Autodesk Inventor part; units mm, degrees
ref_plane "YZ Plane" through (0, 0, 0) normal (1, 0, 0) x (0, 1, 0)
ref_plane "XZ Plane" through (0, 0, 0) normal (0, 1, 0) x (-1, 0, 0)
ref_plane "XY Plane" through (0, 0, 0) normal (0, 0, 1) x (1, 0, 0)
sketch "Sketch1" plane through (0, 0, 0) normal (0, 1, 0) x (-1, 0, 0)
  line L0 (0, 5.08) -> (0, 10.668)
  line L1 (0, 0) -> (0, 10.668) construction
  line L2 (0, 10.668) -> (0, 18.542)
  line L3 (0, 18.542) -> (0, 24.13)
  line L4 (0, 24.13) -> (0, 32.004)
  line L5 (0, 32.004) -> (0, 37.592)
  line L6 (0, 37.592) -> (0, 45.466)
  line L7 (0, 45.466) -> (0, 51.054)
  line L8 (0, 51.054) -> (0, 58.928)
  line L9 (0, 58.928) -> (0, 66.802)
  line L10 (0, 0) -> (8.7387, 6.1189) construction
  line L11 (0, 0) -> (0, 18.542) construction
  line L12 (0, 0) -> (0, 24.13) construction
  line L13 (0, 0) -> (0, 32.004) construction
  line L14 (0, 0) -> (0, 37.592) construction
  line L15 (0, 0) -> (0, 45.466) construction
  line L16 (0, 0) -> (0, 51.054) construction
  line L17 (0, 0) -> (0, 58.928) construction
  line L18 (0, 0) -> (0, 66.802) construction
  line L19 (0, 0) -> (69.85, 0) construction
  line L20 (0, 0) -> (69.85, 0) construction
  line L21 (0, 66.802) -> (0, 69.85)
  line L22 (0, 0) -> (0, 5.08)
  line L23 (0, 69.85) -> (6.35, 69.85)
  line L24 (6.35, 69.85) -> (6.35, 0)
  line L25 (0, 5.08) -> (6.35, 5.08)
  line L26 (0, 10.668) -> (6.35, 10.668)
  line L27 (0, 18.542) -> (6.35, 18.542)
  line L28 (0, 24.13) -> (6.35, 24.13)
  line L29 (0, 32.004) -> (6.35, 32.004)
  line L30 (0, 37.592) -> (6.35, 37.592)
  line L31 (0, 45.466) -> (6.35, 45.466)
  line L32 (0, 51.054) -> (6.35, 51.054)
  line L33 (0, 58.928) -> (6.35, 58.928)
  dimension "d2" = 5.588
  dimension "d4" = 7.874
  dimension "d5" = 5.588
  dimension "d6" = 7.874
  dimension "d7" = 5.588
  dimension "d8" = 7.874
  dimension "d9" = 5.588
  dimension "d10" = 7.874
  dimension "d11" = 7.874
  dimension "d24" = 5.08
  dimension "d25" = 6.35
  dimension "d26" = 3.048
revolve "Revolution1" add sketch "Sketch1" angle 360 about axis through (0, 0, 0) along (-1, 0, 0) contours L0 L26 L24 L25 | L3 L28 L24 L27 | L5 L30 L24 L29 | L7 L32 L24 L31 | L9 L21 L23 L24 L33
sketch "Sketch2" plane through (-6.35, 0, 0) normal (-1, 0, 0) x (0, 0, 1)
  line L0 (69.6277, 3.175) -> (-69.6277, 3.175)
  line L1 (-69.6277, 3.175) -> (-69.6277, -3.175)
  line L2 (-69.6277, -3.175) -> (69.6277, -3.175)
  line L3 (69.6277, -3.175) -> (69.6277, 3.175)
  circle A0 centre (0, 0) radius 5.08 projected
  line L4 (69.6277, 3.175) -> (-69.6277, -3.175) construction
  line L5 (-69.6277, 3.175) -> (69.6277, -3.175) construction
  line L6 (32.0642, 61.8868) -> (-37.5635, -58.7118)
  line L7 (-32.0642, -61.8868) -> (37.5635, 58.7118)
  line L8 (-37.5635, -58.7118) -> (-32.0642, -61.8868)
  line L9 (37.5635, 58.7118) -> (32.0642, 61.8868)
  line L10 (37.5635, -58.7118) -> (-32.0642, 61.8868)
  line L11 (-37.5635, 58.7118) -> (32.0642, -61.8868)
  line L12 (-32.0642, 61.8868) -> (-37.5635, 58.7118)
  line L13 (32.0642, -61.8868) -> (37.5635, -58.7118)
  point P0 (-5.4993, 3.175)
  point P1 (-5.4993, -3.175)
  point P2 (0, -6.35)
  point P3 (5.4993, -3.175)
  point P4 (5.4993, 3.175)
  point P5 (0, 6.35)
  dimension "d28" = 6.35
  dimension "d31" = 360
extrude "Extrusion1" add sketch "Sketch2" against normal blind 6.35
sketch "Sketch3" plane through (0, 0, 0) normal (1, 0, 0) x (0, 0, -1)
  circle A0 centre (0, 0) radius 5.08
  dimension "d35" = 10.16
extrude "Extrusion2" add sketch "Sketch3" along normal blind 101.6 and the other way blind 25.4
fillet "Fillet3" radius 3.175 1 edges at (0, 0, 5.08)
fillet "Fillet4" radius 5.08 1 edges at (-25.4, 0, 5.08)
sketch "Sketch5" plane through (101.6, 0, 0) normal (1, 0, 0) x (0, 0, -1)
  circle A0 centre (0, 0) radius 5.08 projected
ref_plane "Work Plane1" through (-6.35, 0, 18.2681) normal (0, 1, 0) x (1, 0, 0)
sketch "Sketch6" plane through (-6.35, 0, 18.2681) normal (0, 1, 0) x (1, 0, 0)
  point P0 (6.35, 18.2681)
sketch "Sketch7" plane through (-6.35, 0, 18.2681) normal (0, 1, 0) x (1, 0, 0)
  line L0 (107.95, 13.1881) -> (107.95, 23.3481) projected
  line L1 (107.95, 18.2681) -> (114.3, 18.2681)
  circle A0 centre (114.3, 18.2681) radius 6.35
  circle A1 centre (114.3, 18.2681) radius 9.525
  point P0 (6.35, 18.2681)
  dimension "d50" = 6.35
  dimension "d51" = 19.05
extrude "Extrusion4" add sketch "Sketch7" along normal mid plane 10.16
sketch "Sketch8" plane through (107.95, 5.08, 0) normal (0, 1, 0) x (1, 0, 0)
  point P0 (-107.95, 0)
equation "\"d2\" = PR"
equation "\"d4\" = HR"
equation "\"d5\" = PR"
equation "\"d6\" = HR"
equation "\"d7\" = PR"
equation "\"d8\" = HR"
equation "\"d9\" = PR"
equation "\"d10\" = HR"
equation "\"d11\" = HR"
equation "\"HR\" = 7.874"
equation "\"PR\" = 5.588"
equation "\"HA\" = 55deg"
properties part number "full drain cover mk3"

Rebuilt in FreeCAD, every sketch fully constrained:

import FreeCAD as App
import Part
import Sketcher
Q = App.Units.Quantity


def edges_at(feature, points):
    """Names of the edges that pass closest to the given points."""
    edges = feature.Shape.Edges
    near = lambda p: min(range(len(edges)), key=lambda i: edges[i].distToShape(Part.Vertex(*p))[0])
    return sorted({f"Edge{near(p) + 1}" for p in points})


def add_polygon(sketch, points):
    """Adds a closed chain of lines whose ends are joined by coincident constraints."""
    first, n = sketch.GeometryCount, len(points)
    for a, b in zip(points, points[1:] + points[:1]):
        sketch.addGeometry(Part.LineSegment(App.Vector(*a, 0), App.Vector(*b, 0)), False)
    for i in range(n):
        sketch.addConstraint(Sketcher.Constraint("Coincident", first + i, 2, first + (i + 1) % n, 1))

doc = App.newDocument("Part")
body = doc.addObject("PartDesign::Body", "Body")
body.AllowCompound = True

# Sketch on XZ plane
sketch1 = body.newObject("Sketcher::SketchObject", "Sketch")
sketch1.AttachmentSupport = (doc.getObject("XZ_Plane"), [""])
sketch1.MapMode = "FlatFace"
add_polygon(sketch1, [(0, 10.668), (0, 5.08), (-6.35, 5.08), (-6.35, 10.668)])  # lines 0-3
add_polygon(sketch1, [(0, 24.13), (0, 18.542), (-6.35, 18.542), (-6.35, 24.13)])  # lines 4-7
add_polygon(sketch1, [(0, 37.592), (0, 32.004), (-6.35, 32.004), (-6.35, 37.592)])  # lines 8-11
add_polygon(sketch1, [(0, 51.054), (0, 45.466), (-6.35, 45.466), (-6.35, 51.054)])  # lines 12-15
add_polygon(sketch1, [(0, 69.85), (0, 58.928), (-6.35, 58.928), (-6.35, 69.85)])  # lines 16-19
sketch1.addConstraint([
    Sketcher.Constraint("Vertical", 0),
    Sketcher.Constraint("Horizontal", 1),
    Sketcher.Constraint("Vertical", 2),
    Sketcher.Constraint("Horizontal", 3),
    Sketcher.Constraint("Vertical", 4),
    Sketcher.Constraint("Horizontal", 5),
    Sketcher.Constraint("Vertical", 6),
    Sketcher.Constraint("Horizontal", 7),
    Sketcher.Constraint("Vertical", 8),
    Sketcher.Constraint("Horizontal", 9),
    Sketcher.Constraint("Vertical", 10),
    Sketcher.Constraint("Horizontal", 11),
    Sketcher.Constraint("Vertical", 12),
    Sketcher.Constraint("Horizontal", 13),
    Sketcher.Constraint("Vertical", 14),
    Sketcher.Constraint("Horizontal", 15),
    Sketcher.Constraint("Vertical", 16),
    Sketcher.Constraint("Horizontal", 17),
    Sketcher.Constraint("Vertical", 18),
    Sketcher.Constraint("Horizontal", 19),
    Sketcher.Constraint("PointOnObject", 0, 2, -2),
    Sketcher.Constraint("PointOnObject", 4, 2, -2),
    Sketcher.Constraint("PointOnObject", 8, 2, -2),
    Sketcher.Constraint("PointOnObject", 12, 2, -2),
    Sketcher.Constraint("PointOnObject", 16, 2, -2),
    Sketcher.Constraint("Vertical", 2, 2, 5, 2),
    Sketcher.Constraint("Vertical", 6, 2, 9, 2),
    Sketcher.Constraint("Vertical", 10, 2, 13, 2),
    Sketcher.Constraint("Vertical", 14, 2, 17, 2),
    Sketcher.Constraint("Equal", 2, 4),
    Sketcher.Constraint("Equal", 6, 8),
    Sketcher.Constraint("Equal", 10, 12),
    Sketcher.Constraint("DistanceX", 1, 2, 1, 1, Q("0.25 in")),
    Sketcher.Constraint("DistanceY", 0, 2, 0, 1, Q("0.22 in")),
    Sketcher.Constraint("DistanceY", -1, 1, 0, 2, Q("0.2 in")),
    Sketcher.Constraint("DistanceY", 3, 2, 4, 2, Q("0.31 in")),
    Sketcher.Constraint("DistanceY", 7, 2, 8, 2, Q("0.31 in")),
    Sketcher.Constraint("DistanceY", 11, 2, 12, 2, Q("0.31 in")),
    Sketcher.Constraint("DistanceY", 15, 2, 16, 2, Q("0.31 in")),
    Sketcher.Constraint("DistanceY", 16, 2, 16, 1, Q("0.43 in")),
])
revolution = body.newObject("PartDesign::Revolution", "Revolution")
revolution.Profile = sketch1
revolution.ReferenceAxis = (sketch1, ["H_Axis"])
revolution.Angle = 360

# Sketch on YZ plane
sketch2 = body.newObject("Sketcher::SketchObject", "Sketch001")
sketch2.AttachmentSupport = (doc.getObject("YZ_Plane"), [""])
sketch2.MapMode = "FlatFace"
sketch2.AttachmentOffset = App.Placement(App.Vector(0, 0, -0.25 * 25.4), App.Rotation())
add_polygon(sketch2, [(-3.175, 69.6277), (3.175, 69.6277), (3.175, 5.499283), (58.7118, 37.5635), (61.8868, 32.0642), (6.350029, 0), (61.8868, -32.0642), (58.7118, -37.5635), (3.175, -5.499283), (3.175, -69.6277), (-3.175, -69.6277), (-3.175, -5.499283), (-58.7118, -37.5635), (-61.8868, -32.0642), (-6.350029, 0), (-61.8868, 32.0642), (-58.7118, 37.5635), (-3.175, 5.499283)])  # lines 0-17
sketch2.addConstraint([
    Sketcher.Constraint("Horizontal", 0),
    Sketcher.Constraint("Vertical", 1),
    Sketcher.Constraint("Vertical", 8),
    Sketcher.Constraint("Horizontal", 9),
    Sketcher.Constraint("Vertical", 10),
    Sketcher.Constraint("Vertical", 17),
    Sketcher.Constraint("Symmetric", 0, 2, 9, 2, -1, 1),
    Sketcher.Constraint("Symmetric", 2, 2, 11, 2, -1, 1),
    Sketcher.Constraint("Symmetric", 3, 2, 12, 2, -1, 1),
    Sketcher.Constraint("Symmetric", 4, 2, 13, 2, -1, 1),
    Sketcher.Constraint("Symmetric", 5, 2, 14, 2, -1, 1),
    Sketcher.Constraint("Symmetric", 6, 2, 15, 2, -1, 1),
    Sketcher.Constraint("Symmetric", 7, 2, 16, 2, -1, 1),
    Sketcher.Constraint("Symmetric", 7, 2, 10, 2, -2),
    Sketcher.Constraint("Symmetric", 6, 2, 11, 2, -2),
    Sketcher.Constraint("Symmetric", 5, 2, 12, 2, -2),
    Sketcher.Constraint("PointOnObject", 4, 2, -1),
    Sketcher.Constraint("Perpendicular", 2, 3),
    Sketcher.Constraint("Perpendicular", 3, 4),
    Sketcher.Constraint("Perpendicular", 6, 7),
    Sketcher.Constraint("Equal", 2, 4),
    Sketcher.Constraint("DistanceX", 0, 1, 0, 2, Q("0.25 in")),
    Sketcher.Constraint("Distance", 3, Q("0.25 in")),
    Sketcher.Constraint("DistanceX", -1, 1, 4, 2, Q("0.25 in")),
    Sketcher.Constraint("DistanceY", 1, 2, 1, 1, 64.1284),
    Sketcher.Constraint("DistanceX", -1, 1, 2, 2, Q("2.3115 in")),
])
pad1 = body.newObject("PartDesign::Pad", "Pad")
pad1.Profile = sketch2
pad1.Length = Q("0.25 in")

# Sketch on YZ plane
sketch3 = body.newObject("Sketcher::SketchObject", "Sketch002")
sketch3.AttachmentSupport = (doc.getObject("YZ_Plane"), [""])
sketch3.MapMode = "FlatFace"
sketch3.addGeometry(Part.Circle(App.Vector(0, 0, 0), App.Vector(0, 0, 1), 5.08), False)
sketch3.addConstraint([
    Sketcher.Constraint("Coincident", 0, 3, -1, 1),
    Sketcher.Constraint("Diameter", 0, Q("0.4 in")),
])
pad2 = body.newObject("PartDesign::Pad", "Pad001")
pad2.Profile = sketch3
pad2.Type = "TwoLengths"
pad2.Length = Q("4 in")
pad2.Length2 = Q("1 in")
doc.recompute()

fillet = body.newObject("PartDesign::Fillet", "Fillet")
fillet.Base = (pad2, edges_at(pad2, [(0, 0, 5.08)]))
fillet.Radius = Q("0.125 in")
doc.recompute()

fillet2 = body.newObject("PartDesign::Fillet", "Fillet001")
fillet2.Base = (fillet, edges_at(fillet, [(-25.4, 0, 5.08)]))
fillet2.Radius = Q("0.2 in")

# Sketch on XZ plane
sketch4 = body.newObject("Sketcher::SketchObject", "Sketch003")
sketch4.AttachmentSupport = (doc.getObject("XZ_Plane"), [""])
sketch4.MapMode = "FlatFace"
sketch4.addGeometry([
    Part.Circle(App.Vector(107.95, 0, 0), App.Vector(0, 0, 1), 9.525),
    Part.Circle(App.Vector(107.95, 0, 0), App.Vector(0, 0, 1), 6.35),
], False)
sketch4.addConstraint([
    Sketcher.Constraint("Coincident", 1, 3, 0, 3),
    Sketcher.Constraint("PointOnObject", 0, 3, -1),
    Sketcher.Constraint("Diameter", 1, Q("0.5 in")),
    Sketcher.Constraint("Diameter", 0, Q("0.75 in")),
    Sketcher.Constraint("DistanceX", -1, 1, 0, 3, Q("4.25 in")),
])
pad3 = body.newObject("PartDesign::Pad", "Pad002")
pad3.Profile = sketch4
pad3.Length = Q("0.4 in")
pad3.Midplane = True

doc.recompute()
